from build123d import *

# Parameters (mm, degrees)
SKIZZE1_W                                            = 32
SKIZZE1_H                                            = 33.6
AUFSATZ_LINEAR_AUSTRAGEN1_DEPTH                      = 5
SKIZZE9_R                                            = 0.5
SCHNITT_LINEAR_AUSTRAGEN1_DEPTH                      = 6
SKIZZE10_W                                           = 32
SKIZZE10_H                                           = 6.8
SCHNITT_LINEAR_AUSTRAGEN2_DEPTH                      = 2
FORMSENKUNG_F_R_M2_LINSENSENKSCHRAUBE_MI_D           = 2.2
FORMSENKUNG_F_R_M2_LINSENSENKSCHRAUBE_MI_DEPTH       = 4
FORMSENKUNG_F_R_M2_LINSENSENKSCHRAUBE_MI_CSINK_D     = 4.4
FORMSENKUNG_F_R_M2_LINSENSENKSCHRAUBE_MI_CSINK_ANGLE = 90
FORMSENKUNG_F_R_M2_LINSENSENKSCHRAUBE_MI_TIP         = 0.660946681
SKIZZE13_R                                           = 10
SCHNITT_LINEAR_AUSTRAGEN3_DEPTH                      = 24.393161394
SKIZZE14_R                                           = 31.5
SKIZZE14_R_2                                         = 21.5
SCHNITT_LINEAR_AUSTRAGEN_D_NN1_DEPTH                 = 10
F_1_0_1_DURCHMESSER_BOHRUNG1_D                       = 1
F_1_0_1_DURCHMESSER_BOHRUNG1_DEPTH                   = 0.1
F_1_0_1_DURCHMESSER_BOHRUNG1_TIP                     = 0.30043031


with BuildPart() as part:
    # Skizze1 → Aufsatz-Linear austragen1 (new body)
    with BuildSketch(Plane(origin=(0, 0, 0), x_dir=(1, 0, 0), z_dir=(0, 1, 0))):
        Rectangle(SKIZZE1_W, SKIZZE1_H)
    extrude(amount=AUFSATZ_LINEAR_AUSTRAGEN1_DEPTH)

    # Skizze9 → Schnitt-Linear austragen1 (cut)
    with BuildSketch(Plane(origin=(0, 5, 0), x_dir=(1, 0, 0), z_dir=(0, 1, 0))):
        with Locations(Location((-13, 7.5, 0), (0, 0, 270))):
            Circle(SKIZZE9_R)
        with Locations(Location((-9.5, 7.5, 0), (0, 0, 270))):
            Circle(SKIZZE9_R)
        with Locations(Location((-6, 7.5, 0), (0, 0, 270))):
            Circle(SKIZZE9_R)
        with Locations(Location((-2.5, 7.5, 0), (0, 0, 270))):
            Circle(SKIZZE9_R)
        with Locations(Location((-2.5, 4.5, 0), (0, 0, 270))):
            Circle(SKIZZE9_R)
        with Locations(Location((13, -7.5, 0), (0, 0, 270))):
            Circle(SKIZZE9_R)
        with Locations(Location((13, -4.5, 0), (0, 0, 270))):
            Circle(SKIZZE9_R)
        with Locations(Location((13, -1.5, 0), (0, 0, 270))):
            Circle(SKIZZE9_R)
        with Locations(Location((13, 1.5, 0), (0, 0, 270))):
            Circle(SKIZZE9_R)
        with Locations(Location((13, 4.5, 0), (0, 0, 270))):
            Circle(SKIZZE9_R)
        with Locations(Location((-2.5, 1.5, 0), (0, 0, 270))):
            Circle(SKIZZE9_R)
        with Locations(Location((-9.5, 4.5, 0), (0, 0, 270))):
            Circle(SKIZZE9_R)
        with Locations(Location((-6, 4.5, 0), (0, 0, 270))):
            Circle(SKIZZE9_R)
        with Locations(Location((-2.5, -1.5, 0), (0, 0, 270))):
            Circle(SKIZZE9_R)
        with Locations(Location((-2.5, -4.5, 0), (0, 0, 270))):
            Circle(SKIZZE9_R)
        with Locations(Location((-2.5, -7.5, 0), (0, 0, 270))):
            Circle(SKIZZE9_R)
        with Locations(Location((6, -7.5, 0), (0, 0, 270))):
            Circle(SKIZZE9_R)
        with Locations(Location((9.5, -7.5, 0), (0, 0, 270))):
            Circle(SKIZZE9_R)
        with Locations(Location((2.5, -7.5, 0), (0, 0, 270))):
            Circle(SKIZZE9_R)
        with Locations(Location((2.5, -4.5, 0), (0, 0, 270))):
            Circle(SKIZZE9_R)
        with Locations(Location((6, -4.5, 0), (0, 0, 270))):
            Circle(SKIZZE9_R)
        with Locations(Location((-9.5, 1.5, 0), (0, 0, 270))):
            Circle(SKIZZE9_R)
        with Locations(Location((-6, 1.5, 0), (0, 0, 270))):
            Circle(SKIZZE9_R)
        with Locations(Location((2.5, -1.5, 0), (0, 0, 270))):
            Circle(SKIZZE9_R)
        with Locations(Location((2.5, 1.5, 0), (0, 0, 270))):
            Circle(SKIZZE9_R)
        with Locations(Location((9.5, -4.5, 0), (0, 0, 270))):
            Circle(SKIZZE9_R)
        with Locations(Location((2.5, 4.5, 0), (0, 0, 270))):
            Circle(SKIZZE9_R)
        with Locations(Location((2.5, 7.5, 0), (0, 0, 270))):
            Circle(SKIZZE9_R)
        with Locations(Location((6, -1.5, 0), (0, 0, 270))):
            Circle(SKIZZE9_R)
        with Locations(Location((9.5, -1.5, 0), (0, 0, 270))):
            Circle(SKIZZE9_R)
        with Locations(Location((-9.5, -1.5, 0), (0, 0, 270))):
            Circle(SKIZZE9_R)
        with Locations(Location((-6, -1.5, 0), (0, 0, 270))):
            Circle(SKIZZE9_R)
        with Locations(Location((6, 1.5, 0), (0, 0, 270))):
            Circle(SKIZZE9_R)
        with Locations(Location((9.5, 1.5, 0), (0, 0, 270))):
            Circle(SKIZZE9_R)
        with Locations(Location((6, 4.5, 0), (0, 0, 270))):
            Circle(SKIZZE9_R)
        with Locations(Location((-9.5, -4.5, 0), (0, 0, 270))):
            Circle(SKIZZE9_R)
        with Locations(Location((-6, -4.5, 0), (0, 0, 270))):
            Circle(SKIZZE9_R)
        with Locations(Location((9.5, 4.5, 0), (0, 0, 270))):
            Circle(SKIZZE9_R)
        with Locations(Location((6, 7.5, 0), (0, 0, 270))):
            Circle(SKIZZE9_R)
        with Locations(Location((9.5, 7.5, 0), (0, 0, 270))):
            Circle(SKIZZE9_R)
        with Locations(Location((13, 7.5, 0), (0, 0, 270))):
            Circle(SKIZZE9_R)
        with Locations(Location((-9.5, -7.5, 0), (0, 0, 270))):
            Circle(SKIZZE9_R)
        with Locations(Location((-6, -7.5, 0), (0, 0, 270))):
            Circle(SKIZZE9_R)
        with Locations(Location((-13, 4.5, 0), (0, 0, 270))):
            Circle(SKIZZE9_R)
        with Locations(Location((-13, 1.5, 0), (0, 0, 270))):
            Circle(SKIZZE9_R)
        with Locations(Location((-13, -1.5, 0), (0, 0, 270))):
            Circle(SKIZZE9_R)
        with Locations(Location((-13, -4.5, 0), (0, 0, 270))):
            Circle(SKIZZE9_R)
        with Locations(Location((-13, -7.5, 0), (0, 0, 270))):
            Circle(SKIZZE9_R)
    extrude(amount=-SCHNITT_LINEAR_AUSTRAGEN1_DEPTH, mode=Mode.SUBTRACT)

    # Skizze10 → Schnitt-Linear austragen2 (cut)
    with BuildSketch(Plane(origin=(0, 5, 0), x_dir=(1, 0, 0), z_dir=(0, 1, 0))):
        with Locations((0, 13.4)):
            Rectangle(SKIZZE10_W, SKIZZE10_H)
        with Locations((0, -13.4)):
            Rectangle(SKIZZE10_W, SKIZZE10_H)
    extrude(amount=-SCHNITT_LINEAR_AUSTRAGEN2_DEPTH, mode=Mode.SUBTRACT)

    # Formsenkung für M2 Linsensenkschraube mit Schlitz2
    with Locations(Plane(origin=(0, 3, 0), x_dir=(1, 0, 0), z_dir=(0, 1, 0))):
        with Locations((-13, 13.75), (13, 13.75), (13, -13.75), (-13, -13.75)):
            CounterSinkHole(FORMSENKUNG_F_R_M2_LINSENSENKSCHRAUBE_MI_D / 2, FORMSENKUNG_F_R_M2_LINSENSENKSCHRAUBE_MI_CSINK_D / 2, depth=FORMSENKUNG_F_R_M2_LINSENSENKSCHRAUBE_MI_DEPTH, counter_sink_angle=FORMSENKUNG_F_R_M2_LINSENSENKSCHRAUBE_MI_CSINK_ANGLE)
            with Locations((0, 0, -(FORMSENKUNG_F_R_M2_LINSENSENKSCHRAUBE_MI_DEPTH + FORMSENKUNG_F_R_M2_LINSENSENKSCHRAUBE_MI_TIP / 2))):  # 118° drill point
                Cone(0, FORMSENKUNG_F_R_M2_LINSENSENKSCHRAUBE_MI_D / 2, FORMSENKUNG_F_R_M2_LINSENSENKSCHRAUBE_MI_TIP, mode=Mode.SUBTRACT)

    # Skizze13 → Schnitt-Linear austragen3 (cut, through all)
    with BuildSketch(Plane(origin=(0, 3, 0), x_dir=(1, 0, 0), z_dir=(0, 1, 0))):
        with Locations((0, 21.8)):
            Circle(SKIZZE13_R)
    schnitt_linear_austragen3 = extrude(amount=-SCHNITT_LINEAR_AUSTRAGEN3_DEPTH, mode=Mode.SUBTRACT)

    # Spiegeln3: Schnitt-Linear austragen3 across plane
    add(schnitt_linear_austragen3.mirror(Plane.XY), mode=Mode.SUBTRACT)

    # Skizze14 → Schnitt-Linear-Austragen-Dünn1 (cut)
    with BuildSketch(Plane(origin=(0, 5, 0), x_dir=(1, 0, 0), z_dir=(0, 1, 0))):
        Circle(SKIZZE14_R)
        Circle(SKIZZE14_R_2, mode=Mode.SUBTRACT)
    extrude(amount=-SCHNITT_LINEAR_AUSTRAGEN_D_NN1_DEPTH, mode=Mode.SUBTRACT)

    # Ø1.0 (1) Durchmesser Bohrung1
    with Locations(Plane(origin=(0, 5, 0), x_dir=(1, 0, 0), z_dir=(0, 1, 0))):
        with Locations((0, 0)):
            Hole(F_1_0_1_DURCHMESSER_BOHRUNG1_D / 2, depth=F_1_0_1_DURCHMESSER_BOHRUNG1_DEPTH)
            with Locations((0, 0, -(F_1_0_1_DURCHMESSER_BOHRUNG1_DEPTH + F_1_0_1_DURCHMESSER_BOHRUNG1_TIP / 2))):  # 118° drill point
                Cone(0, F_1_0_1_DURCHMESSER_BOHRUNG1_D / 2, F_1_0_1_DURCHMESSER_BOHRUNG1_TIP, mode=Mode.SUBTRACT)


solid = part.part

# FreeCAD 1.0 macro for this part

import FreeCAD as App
import Part
import Sketcher
from FreeCAD import Vector


def add_polygon(sketch, points):
    """Adds a closed chain of lines whose ends are joined by coincident constraints."""
    first, n = sketch.GeometryCount, len(points)
    for a, b in zip(points, points[1:] + points[:1]):
        sketch.addGeometry(Part.LineSegment(App.Vector(*a, 0), App.Vector(*b, 0)), False)
    for i in range(n):
        sketch.addConstraint(Sketcher.Constraint("Coincident", first + i, 2, first + (i + 1) % n, 1))

doc = App.newDocument("Part")
body = doc.addObject("PartDesign::Body", "Body")

sketch1 = body.newObject("Sketcher::SketchObject", "Sketch")
sketch1.AttachmentSupport = (doc.getObject("XZ_Plane"), [""])
sketch1.MapMode = "FlatFace"
add_polygon(sketch1, [(-16, -16.8), (-16, 16.8), (16, 16.8), (16, -16.8)])
sketch1.addConstraint([
    Sketcher.Constraint("Vertical", 0),
    Sketcher.Constraint("Horizontal", 1),
    Sketcher.Constraint("Vertical", 2),
    Sketcher.Constraint("Horizontal", 3),
    Sketcher.Constraint("Symmetric", 0, 2, 2, 2, -1, 1),
    Sketcher.Constraint("DistanceX", 1, 1, 1, 2, 32.0),
    Sketcher.Constraint("DistanceY", 0, 1, 0, 2, 33.6),
])
pad1 = body.newObject("PartDesign::Pad", "Pad")
pad1.Profile = sketch1
pad1.Length = 5
pad1.Reversed = True

sketch2 = body.newObject("Sketcher::SketchObject", "Sketch001")
sketch2.AttachmentSupport = (doc.getObject("XZ_Plane"), [""])
sketch2.MapMode = "FlatFace"
sketch2.AttachmentOffset = App.Placement(Vector(0, 0, -5), App.Rotation())
sketch2.addGeometry([
    Part.Circle(Vector(-13, -7.5, 0), Vector(0, 0, 1), 0.5),
    Part.Circle(Vector(-9.5, -7.5, 0), Vector(0, 0, 1), 0.5),
    Part.Circle(Vector(-6, -7.5, 0), Vector(0, 0, 1), 0.5),
    Part.Circle(Vector(-2.5, -7.5, 0), Vector(0, 0, 1), 0.5),
    Part.Circle(Vector(-2.5, -4.5, 0), Vector(0, 0, 1), 0.5),
    Part.Circle(Vector(13, 7.5, 0), Vector(0, 0, 1), 0.5),
    Part.Circle(Vector(13, 4.5, 0), Vector(0, 0, 1), 0.5),
    Part.Circle(Vector(13, 1.5, 0), Vector(0, 0, 1), 0.5),
    Part.Circle(Vector(13, -1.5, 0), Vector(0, 0, 1), 0.5),
    Part.Circle(Vector(13, -4.5, 0), Vector(0, 0, 1), 0.5),
    Part.Circle(Vector(-2.5, -1.5, 0), Vector(0, 0, 1), 0.5),
    Part.Circle(Vector(-9.5, -4.5, 0), Vector(0, 0, 1), 0.5),
    Part.Circle(Vector(-6, -4.5, 0), Vector(0, 0, 1), 0.5),
    Part.Circle(Vector(-2.5, 1.5, 0), Vector(0, 0, 1), 0.5),
    Part.Circle(Vector(-2.5, 4.5, 0), Vector(0, 0, 1), 0.5),
    Part.Circle(Vector(-2.5, 7.5, 0), Vector(0, 0, 1), 0.5),
    Part.Circle(Vector(6, 7.5, 0), Vector(0, 0, 1), 0.5),
    Part.Circle(Vector(9.5, 7.5, 0), Vector(0, 0, 1), 0.5),
    Part.Circle(Vector(2.5, 7.5, 0), Vector(0, 0, 1), 0.5),
    Part.Circle(Vector(2.5, 4.5, 0), Vector(0, 0, 1), 0.5),
    Part.Circle(Vector(6, 4.5, 0), Vector(0, 0, 1), 0.5),
    Part.Circle(Vector(-9.5, -1.5, 0), Vector(0, 0, 1), 0.5),
    Part.Circle(Vector(-6, -1.5, 0), Vector(0, 0, 1), 0.5),
    Part.Circle(Vector(2.5, 1.5, 0), Vector(0, 0, 1), 0.5),
    Part.Circle(Vector(2.5, -1.5, 0), Vector(0, 0, 1), 0.5),
    Part.Circle(Vector(9.5, 4.5, 0), Vector(0, 0, 1), 0.5),
    Part.Circle(Vector(2.5, -4.5, 0), Vector(0, 0, 1), 0.5),
    Part.Circle(Vector(2.5, -7.5, 0), Vector(0, 0, 1), 0.5),
    Part.Circle(Vector(6, 1.5, 0), Vector(0, 0, 1), 0.5),
    Part.Circle(Vector(9.5, 1.5, 0), Vector(0, 0, 1), 0.5),
    Part.Circle(Vector(-9.5, 1.5, 0), Vector(0, 0, 1), 0.5),
    Part.Circle(Vector(-6, 1.5, 0), Vector(0, 0, 1), 0.5),
    Part.Circle(Vector(6, -1.5, 0), Vector(0, 0, 1), 0.5),
    Part.Circle(Vector(9.5, -1.5, 0), Vector(0, 0, 1), 0.5),
    Part.Circle(Vector(6, -4.5, 0), Vector(0, 0, 1), 0.5),
    Part.Circle(Vector(-9.5, 4.5, 0), Vector(0, 0, 1), 0.5),
    Part.Circle(Vector(-6, 4.5, 0), Vector(0, 0, 1), 0.5),
    Part.Circle(Vector(9.5, -4.5, 0), Vector(0, 0, 1), 0.5),
    Part.Circle(Vector(6, -7.5, 0), Vector(0, 0, 1), 0.5),
    Part.Circle(Vector(9.5, -7.5, 0), Vector(0, 0, 1), 0.5),
    Part.Circle(Vector(13, -7.5, 0), Vector(0, 0, 1), 0.5),
    Part.Circle(Vector(-9.5, 7.5, 0), Vector(0, 0, 1), 0.5),
    Part.Circle(Vector(-6, 7.5, 0), Vector(0, 0, 1), 0.5),
    Part.Circle(Vector(-13, -4.5, 0), Vector(0, 0, 1), 0.5),
    Part.Circle(Vector(-13, -1.5, 0), Vector(0, 0, 1), 0.5),
    Part.Circle(Vector(-13, 1.5, 0), Vector(0, 0, 1), 0.5),
    Part.Circle(Vector(-13, 4.5, 0), Vector(0, 0, 1), 0.5),
    Part.Circle(Vector(-13, 7.5, 0), Vector(0, 0, 1), 0.5),
], False)
sketch2.addConstraint([
    Sketcher.Constraint("Equal", 0, 1),
    Sketcher.Constraint("Equal", 1, 2),
    Sketcher.Constraint("Equal", 2, 3),
    Sketcher.Constraint("Equal", 3, 4),
    Sketcher.Constraint("Equal", 4, 5),
    Sketcher.Constraint("Equal", 5, 6),
    Sketcher.Constraint("Equal", 6, 7),
    Sketcher.Constraint("Equal", 7, 8),
    Sketcher.Constraint("Equal", 8, 9),
    Sketcher.Constraint("Equal", 9, 10),
    Sketcher.Constraint("Equal", 10, 11),
    Sketcher.Constraint("Equal", 11, 12),
    Sketcher.Constraint("Equal", 12, 13),
    Sketcher.Constraint("Equal", 13, 14),
    Sketcher.Constraint("Equal", 14, 15),
    Sketcher.Constraint("Equal", 15, 16),
    Sketcher.Constraint("Equal", 16, 17),
    Sketcher.Constraint("Equal", 17, 18),
    Sketcher.Constraint("Equal", 18, 19),
    Sketcher.Constraint("Equal", 19, 20),
    Sketcher.Constraint("Equal", 20, 21),
    Sketcher.Constraint("Equal", 21, 22),
    Sketcher.Constraint("Equal", 22, 23),
    Sketcher.Constraint("Equal", 23, 24),
    Sketcher.Constraint("Equal", 24, 25),
    Sketcher.Constraint("Equal", 25, 26),
    Sketcher.Constraint("Equal", 26, 27),
    Sketcher.Constraint("Equal", 27, 28),
    Sketcher.Constraint("Equal", 28, 29),
    Sketcher.Constraint("Equal", 29, 30),
    Sketcher.Constraint("Equal", 30, 31),
    Sketcher.Constraint("Equal", 31, 32),
    Sketcher.Constraint("Equal", 32, 33),
    Sketcher.Constraint("Equal", 33, 34),
    Sketcher.Constraint("Equal", 34, 35),
    Sketcher.Constraint("Equal", 35, 36),
    Sketcher.Constraint("Equal", 36, 37),
    Sketcher.Constraint("Equal", 37, 38),
    Sketcher.Constraint("Equal", 38, 39),
    Sketcher.Constraint("Equal", 39, 40),
    Sketcher.Constraint("Equal", 40, 41),
    Sketcher.Constraint("Equal", 41, 42),
    Sketcher.Constraint("Equal", 42, 43),
    Sketcher.Constraint("Equal", 43, 44),
    Sketcher.Constraint("Equal", 44, 45),
    Sketcher.Constraint("Equal", 45, 46),
    Sketcher.Constraint("Equal", 46, 47),
    Sketcher.Constraint("Symmetric", 0, 3, 5, 3, -1, 1),
    Sketcher.Constraint("Symmetric", 2, 3, 16, 3, -1, 1),
    Sketcher.Constraint("Symmetric", 1, 3, 17, 3, -1, 1),
    Sketcher.Constraint("Symmetric", 3, 3, 18, 3, -1, 1),
    Sketcher.Constraint("Symmetric", 4, 3, 19, 3, -1, 1),
    Sketcher.Constraint("Symmetric", 12, 3, 20, 3, -1, 1),
    Sketcher.Constraint("Symmetric", 10, 3, 23, 3, -1, 1),
    Sketcher.Constraint("Symmetric", 13, 3, 24, 3, -1, 1),
    Sketcher.Constraint("Symmetric", 11, 3, 25, 3, -1, 1),
    Sketcher.Constraint("Symmetric", 14, 3, 26, 3, -1, 1),
    Sketcher.Constraint("Symmetric", 15, 3, 27, 3, -1, 1),
    Sketcher.Constraint("Symmetric", 22, 3, 28, 3, -1, 1),
    Sketcher.Constraint("Symmetric", 21, 3, 29, 3, -1, 1),
    Sketcher.Constraint("Symmetric", 31, 3, 32, 3, -1, 1),
    Sketcher.Constraint("Symmetric", 30, 3, 33, 3, -1, 1),
    Sketcher.Constraint("Symmetric", 34, 3, 36, 3, -1, 1),
    Sketcher.Constraint("Symmetric", 35, 3, 37, 3, -1, 1),
    Sketcher.Constraint("Symmetric", 39, 3, 41, 3, -1, 1),
    Sketcher.Constraint("Symmetric", 38, 3, 42, 3, -1, 1),
    Sketcher.Constraint("Symmetric", 6, 3, 43, 3, -1, 1),
    Sketcher.Constraint("Symmetric", 7, 3, 44, 3, -1, 1),
    Sketcher.Constraint("Symmetric", 8, 3, 45, 3, -1, 1),
    Sketcher.Constraint("Symmetric", 9, 3, 46, 3, -1, 1),
    Sketcher.Constraint("Symmetric", 40, 3, 47, 3, -1, 1),
    Sketcher.Constraint("Symmetric", 15, 3, 18, 3, -2),
    Sketcher.Constraint("Symmetric", 14, 3, 19, 3, -2),
    Sketcher.Constraint("Symmetric", 13, 3, 23, 3, -2),
    Sketcher.Constraint("Symmetric", 29, 3, 30, 3, -2),
    Sketcher.Constraint("Symmetric", 28, 3, 31, 3, -2),
    Sketcher.Constraint("Symmetric", 12, 3, 34, 3, -2),
    Sketcher.Constraint("Symmetric", 25, 3, 35, 3, -2),
    Sketcher.Constraint("Symmetric", 2, 3, 38, 3, -2),
    Sketcher.Constraint("Symmetric", 1, 3, 39, 3, -2),
    Sketcher.Constraint("Symmetric", 0, 3, 40, 3, -2),
    Sketcher.Constraint("Symmetric", 9, 3, 43, 3, -2),
    Sketcher.Constraint("Symmetric", 8, 3, 44, 3, -2),
    Sketcher.Constraint("Horizontal", 0, 3, 1, 3),
    Sketcher.Constraint("Horizontal", 1, 3, 2, 3),
    Sketcher.Constraint("Horizontal", 2, 3, 3, 3),
    Sketcher.Constraint("Horizontal", 4, 3, 9, 3),
    Sketcher.Constraint("Horizontal", 8, 3, 10, 3),
    Sketcher.Constraint("Horizontal", 9, 3, 11, 3),
    Sketcher.Constraint("Horizontal", 11, 3, 12, 3),
    Sketcher.Constraint("Horizontal", 10, 3, 21, 3),
    Sketcher.Constraint("Horizontal", 21, 3, 22, 3),
    Sketcher.Constraint("Vertical", 3, 3, 4, 3),
    Sketcher.Constraint("Vertical", 5, 3, 6, 3),
    Sketcher.Constraint("Vertical", 6, 3, 7, 3),
    Sketcher.Constraint("Vertical", 4, 3, 10, 3),
    Sketcher.Constraint("Vertical", 1, 3, 11, 3),
    Sketcher.Constraint("Vertical", 2, 3, 12, 3),
    Sketcher.Constraint("Vertical", 11, 3, 21, 3),
    Sketcher.Constraint("Vertical", 12, 3, 22, 3),
    Sketcher.Constraint("Diameter", 0, 1.0),
    Sketcher.Constraint("DistanceX", 0, 3, -1, 1, 13.0),
    Sketcher.Constraint("DistanceX", 2, 3, -1, 1, 6.0),
    Sketcher.Constraint("DistanceX", 1, 3, 3, 3, 7.0),
    Sketcher.Constraint("DistanceY", 3, 3, 4, 3, 3.0),
    Sketcher.Constraint("DistanceY", 4, 3, 5, 3, 12.0),
    Sketcher.Constraint("DistanceY", 7, 3, 6, 3, 3.0),
    Sketcher.Constraint("DistanceX", 15, 3, 18, 3, 5.0),
])
pocket1 = body.newObject("PartDesign::Pocket", "Pocket")
pocket1.Profile = sketch2
pocket1.Length = 6
pocket1.Reversed = True

sketch3 = body.newObject("Sketcher::SketchObject", "Sketch002")
sketch3.AttachmentSupport = (doc.getObject("XZ_Plane"), [""])
sketch3.MapMode = "FlatFace"
sketch3.AttachmentOffset = App.Placement(Vector(0, 0, -5), App.Rotation())
add_polygon(sketch3, [(-16, -16.8), (-16, -10), (16, -10), (16, -16.8)])
add_polygon(sketch3, [(-16, 10), (-16, 16.8), (16, 16.8), (16, 10)])
sketch3.addConstraint([
    Sketcher.Constraint("Vertical", 0),
    Sketcher.Constraint("Horizontal", 1),
    Sketcher.Constraint("Vertical", 2),
    Sketcher.Constraint("Horizontal", 3),
    Sketcher.Constraint("Vertical", 4),
    Sketcher.Constraint("Horizontal", 5),
    Sketcher.Constraint("Vertical", 6),
    Sketcher.Constraint("Horizontal", 7),
    Sketcher.Constraint("Symmetric", 2, 2, 4, 2, -1, 1),
    Sketcher.Constraint("Symmetric", 0, 2, 6, 2, -1, 1),
    Sketcher.Constraint("Vertical", 3, 2, 4, 2),
    Sketcher.Constraint("DistanceX", 1, 1, 1, 2, 32.0),
    Sketcher.Constraint("DistanceY", 0, 1, 0, 2, 6.8),
    Sketcher.Constraint("DistanceY", 0, 2, -1, 1, 10.0),
])
pocket2 = body.newObject("PartDesign::Pocket", "Pocket001")
pocket2.Profile = sketch3
pocket2.Length = 2
pocket2.Reversed = True

sketch4 = body.newObject("Sketcher::SketchObject", "Sketch003")
sketch4.AttachmentSupport = (doc.getObject("XZ_Plane"), [""])
sketch4.MapMode = "FlatFace"
sketch4.AttachmentOffset = App.Placement(Vector(0, 0, -3), App.Rotation())
sketch4.addGeometry([
    Part.Circle(Vector(-13, -13.75, 0), Vector(0, 0, 1), 1.1),
    Part.Circle(Vector(13, -13.75, 0), Vector(0, 0, 1), 1.1),
    Part.Circle(Vector(13, 13.75, 0), Vector(0, 0, 1), 1.1),
    Part.Circle(Vector(-13, 13.75, 0), Vector(0, 0, 1), 1.1),
], False)
sketch4.addConstraint([
    Sketcher.Constraint("Equal", 0, 1),
    Sketcher.Constraint("Equal", 1, 2),
    Sketcher.Constraint("Equal", 2, 3),
    Sketcher.Constraint("Symmetric", 0, 3, 2, 3, -1, 1),
    Sketcher.Constraint("Symmetric", 1, 3, 3, 3, -1, 1),
    Sketcher.Constraint("Symmetric", 0, 3, 1, 3, -2),
    Sketcher.Constraint("Diameter", 0, 2.2),
    Sketcher.Constraint("DistanceX", 0, 3, -1, 1, 13.0),
    Sketcher.Constraint("DistanceY", 1, 3, 2, 3, 27.5),
])
doc.recompute()
hole = body.newObject("PartDesign::Hole", "Hole")
hole.Profile = sketch4
hole.ThreadType = "None"
hole.Diameter = 2.2
hole.DepthType = "Dimension"
hole.Depth = 4
hole.DrillPoint = "Angled"
hole.DrillPointAngle = 118
hole.HoleCutType = "Countersink"
hole.HoleCutDiameter = 4.4
hole.HoleCutCountersinkAngle = 90
hole.Reversed = True

sketch5 = body.newObject("Sketcher::SketchObject", "Sketch004")
sketch5.AttachmentSupport = (doc.getObject("XZ_Plane"), [""])
sketch5.MapMode = "FlatFace"
sketch5.AttachmentOffset = App.Placement(Vector(0, 0, -3), App.Rotation())
sketch5.addGeometry(Part.Circle(Vector(0, -21.8, 0), Vector(0, 0, 1), 10), False)
sketch5.addConstraint([
    Sketcher.Constraint("PointOnObject", 0, 3, -2),
    Sketcher.Constraint("Diameter", 0, 20.0),
    Sketcher.Constraint("DistanceY", 0, 3, -1, 1, 21.8),
])
pocket3 = body.newObject("PartDesign::Pocket", "Pocket002")
pocket3.Profile = sketch5
pocket3.Type = "ThroughAll"
pocket3.Reversed = True
doc.recompute()

mirrored = body.newObject("PartDesign::Mirrored", "Mirrored")
mirrored.Originals = [pocket3]
mirrored.MirrorPlane = (doc.getObject("XY_Plane"), [""])
body.Tip = mirrored

sketch6 = body.newObject("Sketcher::SketchObject", "Sketch005")
sketch6.AttachmentSupport = (doc.getObject("XZ_Plane"), [""])
sketch6.MapMode = "FlatFace"
sketch6.AttachmentOffset = App.Placement(Vector(0, 0, -5), App.Rotation())
sketch6.addGeometry([
    Part.Circle(Vector(0, 0, 0), Vector(0, 0, 1), 31.5),
    Part.Circle(Vector(0, 0, 0), Vector(0, 0, 1), 21.5),
], False)
sketch6.addConstraint([
    Sketcher.Constraint("Coincident", 0, 3, -1, 1),
    Sketcher.Constraint("Coincident", 1, 3, -1, 1),
    Sketcher.Constraint("Diameter", 0, 63.0),
    Sketcher.Constraint("Diameter", 1, 43.0),
])
pocket4 = body.newObject("PartDesign::Pocket", "Pocket003")
pocket4.Profile = sketch6
pocket4.Length = 10
pocket4.Reversed = True

sketch7 = body.newObject("Sketcher::SketchObject", "Sketch006")
sketch7.AttachmentSupport = (doc.getObject("XZ_Plane"), [""])
sketch7.MapMode = "FlatFace"
sketch7.AttachmentOffset = App.Placement(Vector(0, 0, -5), App.Rotation())
sketch7.addGeometry(Part.Circle(Vector(0, 0, 0), Vector(0, 0, 1), 0.5), False)
sketch7.addConstraint([
    Sketcher.Constraint("Coincident", 0, 3, -1, 1),
    Sketcher.Constraint("Diameter", 0, 1.0),
])
doc.recompute()
hole2 = body.newObject("PartDesign::Hole", "Hole001")
hole2.Profile = sketch7
hole2.ThreadType = "None"
hole2.Diameter = 1
hole2.DepthType = "Dimension"
hole2.Depth = 0.1
hole2.DrillPoint = "Angled"
hole2.DrillPointAngle = 118
hole2.Reversed = True

doc.recompute()
